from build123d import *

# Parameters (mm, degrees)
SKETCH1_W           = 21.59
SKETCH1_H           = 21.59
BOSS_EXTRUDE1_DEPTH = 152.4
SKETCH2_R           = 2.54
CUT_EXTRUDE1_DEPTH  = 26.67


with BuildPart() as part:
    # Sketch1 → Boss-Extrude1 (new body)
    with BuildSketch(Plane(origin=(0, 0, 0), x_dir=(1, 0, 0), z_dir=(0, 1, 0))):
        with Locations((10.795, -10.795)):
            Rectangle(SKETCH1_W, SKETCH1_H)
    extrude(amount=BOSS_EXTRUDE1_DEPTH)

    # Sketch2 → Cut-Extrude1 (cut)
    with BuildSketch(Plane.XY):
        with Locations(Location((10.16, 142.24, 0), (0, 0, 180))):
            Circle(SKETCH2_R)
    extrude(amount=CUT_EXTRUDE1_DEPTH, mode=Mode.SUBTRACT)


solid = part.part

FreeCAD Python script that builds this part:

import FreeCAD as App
import Part
import Sketcher
Q = App.Units.Quantity


def add_polygon(sketch, points):
    """Adds a closed chain of lines whose ends are joined by coincident constraints."""
    first, n = sketch.GeometryCount, len(points)
    for a, b in zip(points, points[1:] + points[:1]):
        sketch.addGeometry(Part.LineSegment(App.Vector(*a, 0), App.Vector(*b, 0)), False)
    for i in range(n):
        sketch.addConstraint(Sketcher.Constraint("Coincident", first + i, 2, first + (i + 1) % n, 1))

doc = App.newDocument("Part")
params = doc.addObject("Spreadsheet::Sheet", "Params")
for row, (alias, value) in enumerate([
    ("sketch1_width", "0.85 in"),
    ("pad1_length", "6 in"),
    ("sketch2_diameter", "0.2 in"),
    ("pocket1_length", "1.05 in"),
], start=1):
    params.set(f"A{row}", alias)
    params.set(f"B{row}", "=" + value)
    params.setAlias(f"B{row}", alias)

body = doc.addObject("PartDesign::Body", "Body")

# Sketch on XZ plane
sketch1 = doc.addObject("Sketcher::SketchObject", "Sketch")
body.addObject(sketch1)
sketch1.AttachmentSupport = (doc.XZ_Plane, [""])
sketch1.MapMode = "FlatFace"
add_polygon(sketch1, [(0, 0), (0, 21.59), (21.59, 21.59), (21.59, 0)])  # lines 0-3
sketch1.addConstraint([
    Sketcher.Constraint("Vertical", 0),
    Sketcher.Constraint("Horizontal", 1),
    Sketcher.Constraint("Vertical", 2),
    Sketcher.Constraint("Horizontal", 3),
    Sketcher.Constraint("Coincident", 3, 2, -1, 1),
    Sketcher.Constraint("Equal", 3, 0),
    Sketcher.Constraint("DistanceX", 1, 1, 1, 2, Q("0.85 in")),
])
sketch1.setExpression("Constraints[10]", "Params.sketch1_width")
pad1 = doc.addObject("PartDesign::Pad", "Pad")
body.addObject(pad1)
pad1.Profile = sketch1
pad1.setExpression("Length", "Params.pad1_length")
pad1.Reversed = True

# Sketch on XY plane
sketch2 = doc.addObject("Sketcher::SketchObject", "Sketch001")
body.addObject(sketch2)
sketch2.AttachmentSupport = (doc.XY_Plane, [""])
sketch2.MapMode = "FlatFace"
sketch2.addGeometry(Part.Circle(App.Vector(10.16, 142.24, 0), App.Vector(0, 0, 1), 2.54), False)
sketch2.addConstraint([
    Sketcher.Constraint("Diameter", 0, Q("0.2 in")),
    Sketcher.Constraint("DistanceX", -1, 1, 0, 3, Q("0.4 in")),
    Sketcher.Constraint("DistanceY", -1, 1, 0, 3, Q("5.6 in")),
])
sketch2.setExpression("Constraints[0]", "Params.sketch2_diameter")
pocket1 = doc.addObject("PartDesign::Pocket", "Pocket")
body.addObject(pocket1)
pocket1.Profile = sketch2
pocket1.setExpression("Length", "Params.pocket1_length")
pocket1.Reversed = True

doc.recompute()
